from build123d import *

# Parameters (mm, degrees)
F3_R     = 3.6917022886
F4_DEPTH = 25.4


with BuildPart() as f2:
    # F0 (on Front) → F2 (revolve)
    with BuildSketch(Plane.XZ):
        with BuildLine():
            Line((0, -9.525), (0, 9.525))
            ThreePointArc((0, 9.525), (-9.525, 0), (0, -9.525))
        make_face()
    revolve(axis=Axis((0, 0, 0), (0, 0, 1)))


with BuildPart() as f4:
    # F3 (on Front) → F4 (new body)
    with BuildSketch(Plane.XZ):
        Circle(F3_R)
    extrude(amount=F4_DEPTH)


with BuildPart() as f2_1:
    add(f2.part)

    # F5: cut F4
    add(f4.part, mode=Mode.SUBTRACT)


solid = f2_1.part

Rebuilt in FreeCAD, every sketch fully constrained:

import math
import FreeCAD as App
import Part
import Sketcher

V = App.Vector
Q = App.Units.Quantity

doc = App.newDocument("Part")
params = doc.addObject("Spreadsheet::Sheet", "Params")
for row, (alias, value) in enumerate([
    ("sketch1_radius", "0.375 in"),
    ("revolution_angle", "360 deg"),
    ("pad1_length", "1 in"),
], start=1):
    params.set(f"A{row}", alias)
    params.set(f"B{row}", "=" + value)
    params.setAlias(f"B{row}", alias)

body = doc.addObject("PartDesign::Body", "Body")

# Sketch on XZ plane
sketch1 = body.newObject("Sketcher::SketchObject", "Sketch")
sketch1.AttachmentSupport = (doc.getObject("XZ_Plane"), [""])
sketch1.MapMode = "FlatFace"
sketch1.addGeometry([
    Part.LineSegment(V(0, -10, 0), V(0, 10, 0)),
    Part.ArcOfCircle(Part.Circle(V(0, 0, 0), V(0, 0, 1), 10), math.radians(90), math.radians(270)),
], False)
sketch1.addConstraint([
    Sketcher.Constraint("Coincident", 0, 1, 1, 2),
    Sketcher.Constraint("Coincident", 1, 1, 0, 2),
    Sketcher.Constraint("Vertical", 0),
    Sketcher.Constraint("Coincident", 1, 3, -1, 1),
    Sketcher.Constraint("PointOnObject", 0, 1, -2),
    Sketcher.Constraint("Radius", 1, Q("0.375 in")),
])
sketch1.setExpression("Constraints[5]", "Params.sketch1_radius")
revolution = body.newObject("PartDesign::Revolution", "Revolution")
revolution.Profile = sketch1
revolution.ReferenceAxis = (sketch1, ["V_Axis"])
revolution.setExpression("Angle", "Params.revolution_angle")
body2 = doc.addObject("PartDesign::Body", "Body001")

# Sketch on XZ plane
sketch2 = body2.newObject("Sketcher::SketchObject", "Sketch001")
sketch2.AttachmentSupport = (doc.getObject("XZ_Plane001"), [""])
sketch2.MapMode = "FlatFace"
sketch2.addGeometry(Part.Circle(V(0, 0, 0), V(0, 0, 1), 3.7), False)
sketch2.addConstraint([
    Sketcher.Constraint("Coincident", 0, 3, -1, 1),
    Sketcher.Constraint("Diameter", 0, Q("7.383405 mm")),
])
pad1 = body2.newObject("PartDesign::Pad", "Pad")
pad1.Profile = sketch2
pad1.setExpression("Length", "Params.pad1_length")
doc.recompute()

boolean = body.newObject("PartDesign::Boolean", "Boolean")
boolean.Type = "Cut"
boolean.addObjects([body2])

doc.recompute()
